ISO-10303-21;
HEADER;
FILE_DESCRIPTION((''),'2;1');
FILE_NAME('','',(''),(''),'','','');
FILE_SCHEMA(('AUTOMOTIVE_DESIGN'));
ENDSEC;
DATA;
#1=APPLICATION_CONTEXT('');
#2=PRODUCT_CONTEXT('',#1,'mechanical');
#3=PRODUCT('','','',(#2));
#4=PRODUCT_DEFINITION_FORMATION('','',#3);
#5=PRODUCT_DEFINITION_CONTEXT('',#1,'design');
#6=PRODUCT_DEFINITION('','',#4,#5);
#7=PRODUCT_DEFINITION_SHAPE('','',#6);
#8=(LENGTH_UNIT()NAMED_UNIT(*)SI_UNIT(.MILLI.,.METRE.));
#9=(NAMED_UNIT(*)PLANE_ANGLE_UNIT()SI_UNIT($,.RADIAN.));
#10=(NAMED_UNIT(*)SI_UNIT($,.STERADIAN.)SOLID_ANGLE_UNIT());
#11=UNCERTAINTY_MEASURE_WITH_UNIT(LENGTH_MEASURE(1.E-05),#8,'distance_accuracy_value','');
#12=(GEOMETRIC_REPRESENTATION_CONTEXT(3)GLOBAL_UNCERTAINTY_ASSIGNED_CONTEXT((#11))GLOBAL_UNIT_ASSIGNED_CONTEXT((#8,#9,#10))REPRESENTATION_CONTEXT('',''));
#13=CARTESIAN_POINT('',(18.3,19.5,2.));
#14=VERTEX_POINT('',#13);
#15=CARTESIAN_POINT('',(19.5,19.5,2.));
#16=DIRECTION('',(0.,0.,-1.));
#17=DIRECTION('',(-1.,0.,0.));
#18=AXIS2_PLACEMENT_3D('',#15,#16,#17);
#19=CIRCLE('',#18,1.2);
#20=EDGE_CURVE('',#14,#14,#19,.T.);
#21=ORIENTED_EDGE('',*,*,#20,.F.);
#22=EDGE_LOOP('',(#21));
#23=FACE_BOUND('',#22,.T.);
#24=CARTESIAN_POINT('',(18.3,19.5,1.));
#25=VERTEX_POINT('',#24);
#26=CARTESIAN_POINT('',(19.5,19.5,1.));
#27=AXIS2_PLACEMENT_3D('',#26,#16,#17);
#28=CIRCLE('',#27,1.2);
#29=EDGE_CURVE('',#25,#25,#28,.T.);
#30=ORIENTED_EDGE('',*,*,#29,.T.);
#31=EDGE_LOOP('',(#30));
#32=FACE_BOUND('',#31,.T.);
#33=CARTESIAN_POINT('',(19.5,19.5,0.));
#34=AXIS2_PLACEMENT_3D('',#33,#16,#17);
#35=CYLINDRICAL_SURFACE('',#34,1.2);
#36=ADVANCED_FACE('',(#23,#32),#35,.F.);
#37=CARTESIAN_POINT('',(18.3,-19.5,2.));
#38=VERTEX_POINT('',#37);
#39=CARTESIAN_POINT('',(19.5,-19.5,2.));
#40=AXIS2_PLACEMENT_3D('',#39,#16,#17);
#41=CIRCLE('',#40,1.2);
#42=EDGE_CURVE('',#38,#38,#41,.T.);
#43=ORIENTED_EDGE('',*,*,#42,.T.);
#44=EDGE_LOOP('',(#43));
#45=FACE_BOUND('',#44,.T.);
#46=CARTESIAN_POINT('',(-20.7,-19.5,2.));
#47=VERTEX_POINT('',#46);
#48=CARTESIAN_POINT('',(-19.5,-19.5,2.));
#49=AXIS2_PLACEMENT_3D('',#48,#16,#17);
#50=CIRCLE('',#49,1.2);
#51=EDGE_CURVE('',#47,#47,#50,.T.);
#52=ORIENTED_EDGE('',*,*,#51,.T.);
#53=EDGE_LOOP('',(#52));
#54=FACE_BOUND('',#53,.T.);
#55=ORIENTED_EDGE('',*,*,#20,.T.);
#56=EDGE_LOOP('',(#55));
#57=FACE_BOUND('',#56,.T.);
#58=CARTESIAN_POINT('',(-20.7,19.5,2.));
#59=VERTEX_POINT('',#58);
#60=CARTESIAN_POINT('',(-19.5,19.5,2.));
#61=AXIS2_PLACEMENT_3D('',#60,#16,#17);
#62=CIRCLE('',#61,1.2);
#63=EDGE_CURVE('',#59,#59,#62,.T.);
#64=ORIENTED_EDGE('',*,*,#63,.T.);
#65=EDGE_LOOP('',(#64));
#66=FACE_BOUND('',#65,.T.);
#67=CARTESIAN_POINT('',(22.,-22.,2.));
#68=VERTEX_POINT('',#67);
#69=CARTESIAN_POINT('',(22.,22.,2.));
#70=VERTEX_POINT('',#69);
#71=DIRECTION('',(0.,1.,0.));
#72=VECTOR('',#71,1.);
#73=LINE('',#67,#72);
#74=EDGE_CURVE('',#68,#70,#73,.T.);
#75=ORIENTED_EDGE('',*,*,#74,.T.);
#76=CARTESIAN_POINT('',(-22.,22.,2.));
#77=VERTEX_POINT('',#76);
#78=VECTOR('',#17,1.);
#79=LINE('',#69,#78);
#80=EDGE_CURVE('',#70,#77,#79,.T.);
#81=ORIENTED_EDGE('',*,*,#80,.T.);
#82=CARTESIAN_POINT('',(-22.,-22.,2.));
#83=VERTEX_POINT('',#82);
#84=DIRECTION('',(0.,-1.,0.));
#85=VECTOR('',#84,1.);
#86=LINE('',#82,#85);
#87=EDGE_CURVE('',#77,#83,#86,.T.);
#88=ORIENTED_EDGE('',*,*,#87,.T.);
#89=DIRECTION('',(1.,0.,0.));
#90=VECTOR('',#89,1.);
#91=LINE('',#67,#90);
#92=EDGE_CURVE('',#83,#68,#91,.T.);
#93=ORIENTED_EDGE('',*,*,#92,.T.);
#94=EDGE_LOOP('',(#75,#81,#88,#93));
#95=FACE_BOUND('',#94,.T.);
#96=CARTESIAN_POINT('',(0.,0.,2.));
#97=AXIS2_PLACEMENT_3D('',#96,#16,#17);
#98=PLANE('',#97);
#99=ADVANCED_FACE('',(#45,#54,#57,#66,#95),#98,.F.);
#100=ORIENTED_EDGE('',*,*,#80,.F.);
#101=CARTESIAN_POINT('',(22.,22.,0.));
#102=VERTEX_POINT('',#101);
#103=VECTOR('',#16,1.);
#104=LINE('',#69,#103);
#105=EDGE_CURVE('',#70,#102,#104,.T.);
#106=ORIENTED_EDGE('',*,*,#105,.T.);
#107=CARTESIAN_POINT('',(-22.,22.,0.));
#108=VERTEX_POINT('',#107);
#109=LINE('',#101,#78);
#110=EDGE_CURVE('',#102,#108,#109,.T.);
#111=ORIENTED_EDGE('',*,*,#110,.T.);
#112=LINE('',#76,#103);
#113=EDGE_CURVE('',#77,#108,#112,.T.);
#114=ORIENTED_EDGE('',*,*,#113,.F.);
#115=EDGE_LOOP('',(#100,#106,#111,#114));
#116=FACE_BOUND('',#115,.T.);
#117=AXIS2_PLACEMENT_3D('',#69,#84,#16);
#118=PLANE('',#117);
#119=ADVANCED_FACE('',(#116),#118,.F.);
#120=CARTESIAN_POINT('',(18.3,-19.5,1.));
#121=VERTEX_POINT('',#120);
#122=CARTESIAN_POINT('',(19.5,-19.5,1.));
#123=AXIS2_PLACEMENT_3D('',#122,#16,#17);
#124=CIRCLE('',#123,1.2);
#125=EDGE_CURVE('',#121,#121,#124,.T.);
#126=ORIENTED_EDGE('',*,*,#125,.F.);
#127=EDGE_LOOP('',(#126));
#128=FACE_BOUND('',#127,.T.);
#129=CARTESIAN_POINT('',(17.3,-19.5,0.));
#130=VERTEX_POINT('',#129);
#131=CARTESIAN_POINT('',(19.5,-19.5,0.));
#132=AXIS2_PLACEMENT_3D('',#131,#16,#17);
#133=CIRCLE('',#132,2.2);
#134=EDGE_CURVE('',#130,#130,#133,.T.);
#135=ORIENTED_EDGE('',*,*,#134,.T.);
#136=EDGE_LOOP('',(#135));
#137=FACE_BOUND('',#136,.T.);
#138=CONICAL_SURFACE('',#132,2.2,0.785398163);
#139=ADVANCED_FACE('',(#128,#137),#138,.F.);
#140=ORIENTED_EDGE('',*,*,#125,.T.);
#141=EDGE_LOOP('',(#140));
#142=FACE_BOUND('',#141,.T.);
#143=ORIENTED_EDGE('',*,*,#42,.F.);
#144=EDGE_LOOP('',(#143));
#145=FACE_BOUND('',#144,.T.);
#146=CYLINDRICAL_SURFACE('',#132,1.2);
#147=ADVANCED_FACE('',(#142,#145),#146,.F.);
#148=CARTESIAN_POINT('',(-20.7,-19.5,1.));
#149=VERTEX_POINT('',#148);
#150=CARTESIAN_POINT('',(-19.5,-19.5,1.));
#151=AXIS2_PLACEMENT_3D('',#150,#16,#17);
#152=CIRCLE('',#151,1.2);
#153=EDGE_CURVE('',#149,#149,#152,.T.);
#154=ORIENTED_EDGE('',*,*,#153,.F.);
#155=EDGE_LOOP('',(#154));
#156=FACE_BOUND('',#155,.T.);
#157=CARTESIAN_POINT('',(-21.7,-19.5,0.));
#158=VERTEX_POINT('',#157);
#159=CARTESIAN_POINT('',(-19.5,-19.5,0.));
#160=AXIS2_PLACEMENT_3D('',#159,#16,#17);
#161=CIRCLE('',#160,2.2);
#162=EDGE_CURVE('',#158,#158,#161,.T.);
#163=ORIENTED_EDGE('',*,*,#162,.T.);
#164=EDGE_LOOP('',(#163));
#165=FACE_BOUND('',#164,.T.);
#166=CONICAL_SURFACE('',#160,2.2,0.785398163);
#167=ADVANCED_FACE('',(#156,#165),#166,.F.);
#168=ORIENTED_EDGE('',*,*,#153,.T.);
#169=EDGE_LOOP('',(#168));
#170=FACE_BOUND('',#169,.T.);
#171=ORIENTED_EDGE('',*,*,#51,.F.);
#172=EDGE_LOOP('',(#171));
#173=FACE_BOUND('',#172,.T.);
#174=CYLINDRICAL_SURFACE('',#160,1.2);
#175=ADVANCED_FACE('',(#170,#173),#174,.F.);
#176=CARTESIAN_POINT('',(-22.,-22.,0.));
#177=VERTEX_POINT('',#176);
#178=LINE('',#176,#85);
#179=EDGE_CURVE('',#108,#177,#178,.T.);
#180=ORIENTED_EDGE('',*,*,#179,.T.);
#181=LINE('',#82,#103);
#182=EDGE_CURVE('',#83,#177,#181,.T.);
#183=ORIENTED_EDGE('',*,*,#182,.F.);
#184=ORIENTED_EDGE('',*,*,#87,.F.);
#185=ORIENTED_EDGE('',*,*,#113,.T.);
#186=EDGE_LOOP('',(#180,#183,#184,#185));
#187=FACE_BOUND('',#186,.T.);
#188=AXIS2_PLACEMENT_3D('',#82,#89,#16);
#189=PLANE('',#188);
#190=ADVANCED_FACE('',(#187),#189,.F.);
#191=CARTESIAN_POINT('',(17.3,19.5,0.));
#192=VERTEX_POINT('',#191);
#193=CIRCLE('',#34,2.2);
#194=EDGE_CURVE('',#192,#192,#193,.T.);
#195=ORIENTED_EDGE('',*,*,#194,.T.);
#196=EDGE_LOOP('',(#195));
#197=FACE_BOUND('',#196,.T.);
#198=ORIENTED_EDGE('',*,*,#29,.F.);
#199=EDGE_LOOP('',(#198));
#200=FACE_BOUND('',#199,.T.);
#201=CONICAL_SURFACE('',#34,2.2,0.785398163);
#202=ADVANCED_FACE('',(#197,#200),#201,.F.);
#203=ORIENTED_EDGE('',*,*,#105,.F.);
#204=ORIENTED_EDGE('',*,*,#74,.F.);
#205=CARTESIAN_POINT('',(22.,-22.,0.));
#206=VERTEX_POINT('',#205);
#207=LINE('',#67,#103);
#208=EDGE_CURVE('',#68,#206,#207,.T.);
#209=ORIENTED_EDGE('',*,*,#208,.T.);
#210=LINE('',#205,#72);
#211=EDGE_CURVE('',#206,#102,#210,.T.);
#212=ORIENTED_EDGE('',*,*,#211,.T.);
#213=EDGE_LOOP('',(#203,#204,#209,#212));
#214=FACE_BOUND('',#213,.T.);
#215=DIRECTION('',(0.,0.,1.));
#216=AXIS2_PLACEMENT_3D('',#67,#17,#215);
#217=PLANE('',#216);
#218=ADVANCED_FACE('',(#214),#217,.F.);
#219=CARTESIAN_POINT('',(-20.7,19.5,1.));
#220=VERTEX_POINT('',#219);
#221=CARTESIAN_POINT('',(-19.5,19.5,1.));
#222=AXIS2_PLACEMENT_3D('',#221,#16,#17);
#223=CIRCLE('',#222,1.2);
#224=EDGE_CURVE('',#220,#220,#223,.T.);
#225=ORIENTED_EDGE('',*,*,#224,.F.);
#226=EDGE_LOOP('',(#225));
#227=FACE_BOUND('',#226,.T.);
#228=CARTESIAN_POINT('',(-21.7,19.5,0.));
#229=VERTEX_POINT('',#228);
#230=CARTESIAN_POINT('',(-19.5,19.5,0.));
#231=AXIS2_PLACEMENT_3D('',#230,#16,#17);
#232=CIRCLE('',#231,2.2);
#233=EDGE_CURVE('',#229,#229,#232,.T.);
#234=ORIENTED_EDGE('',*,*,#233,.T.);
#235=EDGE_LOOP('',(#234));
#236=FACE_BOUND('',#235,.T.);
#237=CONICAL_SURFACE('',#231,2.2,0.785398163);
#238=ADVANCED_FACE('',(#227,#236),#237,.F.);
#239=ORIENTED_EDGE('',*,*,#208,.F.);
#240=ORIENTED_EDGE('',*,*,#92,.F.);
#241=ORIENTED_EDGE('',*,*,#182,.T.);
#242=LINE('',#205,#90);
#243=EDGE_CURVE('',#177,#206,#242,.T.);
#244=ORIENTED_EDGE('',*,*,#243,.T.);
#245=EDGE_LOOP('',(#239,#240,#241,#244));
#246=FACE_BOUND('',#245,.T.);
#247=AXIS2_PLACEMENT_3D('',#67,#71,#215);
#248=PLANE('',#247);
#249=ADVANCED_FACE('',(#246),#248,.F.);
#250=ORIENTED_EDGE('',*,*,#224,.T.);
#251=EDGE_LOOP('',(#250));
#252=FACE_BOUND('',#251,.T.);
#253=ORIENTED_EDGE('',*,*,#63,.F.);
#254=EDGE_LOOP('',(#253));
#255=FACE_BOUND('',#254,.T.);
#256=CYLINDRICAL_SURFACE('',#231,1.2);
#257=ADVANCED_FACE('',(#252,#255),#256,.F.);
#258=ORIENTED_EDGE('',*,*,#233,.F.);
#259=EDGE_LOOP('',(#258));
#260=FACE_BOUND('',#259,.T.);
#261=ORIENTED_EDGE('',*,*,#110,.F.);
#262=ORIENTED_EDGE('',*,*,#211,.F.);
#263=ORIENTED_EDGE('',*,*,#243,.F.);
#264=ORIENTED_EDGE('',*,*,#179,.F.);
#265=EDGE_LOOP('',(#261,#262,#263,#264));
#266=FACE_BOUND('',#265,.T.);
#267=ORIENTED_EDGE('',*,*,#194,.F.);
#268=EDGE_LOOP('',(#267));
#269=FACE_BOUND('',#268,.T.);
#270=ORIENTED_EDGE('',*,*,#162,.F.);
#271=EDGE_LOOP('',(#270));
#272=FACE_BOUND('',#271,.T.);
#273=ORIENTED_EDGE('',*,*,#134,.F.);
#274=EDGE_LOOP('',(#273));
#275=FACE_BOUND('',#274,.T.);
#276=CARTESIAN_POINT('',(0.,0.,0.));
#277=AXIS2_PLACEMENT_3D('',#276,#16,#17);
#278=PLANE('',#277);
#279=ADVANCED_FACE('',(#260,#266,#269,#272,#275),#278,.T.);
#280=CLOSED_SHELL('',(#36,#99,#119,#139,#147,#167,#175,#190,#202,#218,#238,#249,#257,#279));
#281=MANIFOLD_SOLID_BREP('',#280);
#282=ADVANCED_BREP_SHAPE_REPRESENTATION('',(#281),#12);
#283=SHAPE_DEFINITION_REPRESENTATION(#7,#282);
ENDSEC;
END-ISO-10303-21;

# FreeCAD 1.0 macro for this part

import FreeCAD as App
import Part
import Sketcher

V = App.Vector
Q = App.Units.Quantity

doc = App.newDocument("Part")
params = doc.addObject("Spreadsheet::Sheet", "Params")
for row, (alias, value) in enumerate([
    ("sketch1_width", "44 mm"),
    ("pad1_length", "2 mm"),
    ("sketch2_height", "2 mm"),
    ("sketch2_height2", "1 mm"),
    ("sketch2_width", "2.2 mm"),
    ("groove_angle", "360 deg"),
    ("linearpattern_pitch", "39 mm"),
    ("sketch3_height", "2 mm"),
    ("sketch3_height2", "1 mm"),
    ("sketch3_width", "1.2 mm"),
    ("groove2_angle", "360 deg"),
], start=1):
    params.set(f"A{row}", alias)
    params.set(f"B{row}", "=" + value)
    params.setAlias(f"B{row}", alias)

body = doc.addObject("PartDesign::Body", "Body")

# Sketch on XY plane
sketch1 = doc.addObject("Sketcher::SketchObject", "Sketch")
body.addObject(sketch1)
sketch1.AttachmentSupport = (doc.XY_Plane, [""])
sketch1.MapMode = "FlatFace"
sketch1.addGeometry(Part.LineSegment(V(-22, -22, 0), V(22, -22, 0)), False)
sketch1.addGeometry(Part.LineSegment(V(22, -22, 0), V(22, 22, 0)), False)
sketch1.addGeometry(Part.LineSegment(V(22, 22, 0), V(-22, 22, 0)), False)
sketch1.addGeometry(Part.LineSegment(V(-22, 22, 0), V(-22, -22, 0)), False)
sketch1.addConstraint(Sketcher.Constraint("Coincident", 0, 2, 1, 1))
sketch1.addConstraint(Sketcher.Constraint("Coincident", 1, 2, 2, 1))
sketch1.addConstraint(Sketcher.Constraint("Coincident", 2, 2, 3, 1))
sketch1.addConstraint(Sketcher.Constraint("Coincident", 3, 2, 0, 1))
sketch1.addConstraint(Sketcher.Constraint("Horizontal", 0))
sketch1.addConstraint(Sketcher.Constraint("Vertical", 1))
sketch1.addConstraint(Sketcher.Constraint("Horizontal", 2))
sketch1.addConstraint(Sketcher.Constraint("Vertical", 3))
sketch1.addConstraint(Sketcher.Constraint("Symmetric", 0, 2, 2, 2, -1, 1))
sketch1.addConstraint(Sketcher.Constraint("Equal", 2, 1))
sketch1.addConstraint(Sketcher.Constraint("DistanceX", 0, 1, 0, 2, 44.0))
sketch1.setExpression("Constraints[10]", "Params.sketch1_width")
pad1 = doc.addObject("PartDesign::Pad", "Pad")
body.addObject(pad1)
pad1.Profile = sketch1
pad1.setExpression("Length", "Params.pad1_length")

# Sketch on YZ plane
sketch2 = doc.addObject("Sketcher::SketchObject", "Sketch001")
body.addObject(sketch2)
sketch2.AttachmentSupport = (doc.YZ_Plane, [""])
sketch2.MapMode = "FlatFace"
sketch2.AttachmentOffset = App.Placement(V(0, 0, 19.5), App.Rotation())
sketch2.addGeometry(Part.LineSegment(V(19.5, 2, 0), V(19.5, 0, 0)), False)
sketch2.addGeometry(Part.LineSegment(V(19.5, 0, 0), V(21.7, 0, 0)), False)
sketch2.addGeometry(Part.LineSegment(V(21.7, 0, 0), V(20.7, 1, 0)), False)
sketch2.addGeometry(Part.LineSegment(V(20.7, 1, 0), V(20.7, 2, 0)), False)
sketch2.addGeometry(Part.LineSegment(V(20.7, 2, 0), V(19.5, 2, 0)), False)
sketch2.addGeometry(Part.LineSegment(V(19.5, 0, 0), V(19.5, 2, 0)), True)  # axis
sketch2.addConstraint(Sketcher.Constraint("Coincident", 0, 2, 1, 1))
sketch2.addConstraint(Sketcher.Constraint("Coincident", 1, 2, 2, 1))
sketch2.addConstraint(Sketcher.Constraint("Coincident", 2, 2, 3, 1))
sketch2.addConstraint(Sketcher.Constraint("Coincident", 3, 2, 4, 1))
sketch2.addConstraint(Sketcher.Constraint("Coincident", 4, 2, 0, 1))
sketch2.addConstraint(Sketcher.Constraint("Vertical", 0))
sketch2.addConstraint(Sketcher.Constraint("Horizontal", 1))
sketch2.addConstraint(Sketcher.Constraint("Vertical", 3))
sketch2.addConstraint(Sketcher.Constraint("Horizontal", 4))
sketch2.addConstraint(Sketcher.Constraint("Vertical", 5))
sketch2.addConstraint(Sketcher.Constraint("Coincident", 5, 1, 0, 2))
sketch2.addConstraint(Sketcher.Constraint("PointOnObject", 0, 2, -1))
sketch2.addConstraint(Sketcher.Constraint("Horizontal", 3, 2, 5, 2))
sketch2.addConstraint(Sketcher.Constraint("DistanceY", 0, 2, 0, 1, 2.0))
sketch2.addConstraint(Sketcher.Constraint("DistanceY", 3, 1, 3, 2, 1.0))
sketch2.addConstraint(Sketcher.Constraint("Angle", 2, Q("135 deg")))
sketch2.addConstraint(Sketcher.Constraint("DistanceX", 1, 1, 1, 2, 2.2))
sketch2.addConstraint(Sketcher.Constraint("DistanceX", -1, 1, 0, 2, 19.5))
sketch2.setExpression("Constraints[13]", "Params.sketch2_height")
sketch2.setExpression("Constraints[14]", "Params.sketch2_height2")
sketch2.setExpression("Constraints[16]", "Params.sketch2_width")
groove = doc.addObject("PartDesign::Groove", "Groove")
body.addObject(groove)
groove.Profile = sketch2
groove.ReferenceAxis = (sketch2, ["Axis0"])
groove.setExpression("Angle", "Params.groove_angle")
doc.recompute()

linearpattern = doc.addObject("PartDesign::LinearPattern", "LinearPattern")
body.addObject(linearpattern)
linearpattern.Originals = [groove]
linearpattern.Direction = (doc.X_Axis, [""])
linearpattern.Mode = "offset"
linearpattern.setExpression("Offset", "Params.linearpattern_pitch")
linearpattern.Occurrences = 2
linearpattern.Reversed = True
body.Tip = linearpattern
doc.recompute()

mirrored = doc.addObject("PartDesign::Mirrored", "Mirrored")
body.addObject(mirrored)
mirrored.Originals = [groove]
mirrored.MirrorPlane = (doc.XZ_Plane, [""])
body.Tip = mirrored

# Sketch on YZ plane
sketch3 = doc.addObject("Sketcher::SketchObject", "Sketch002")
body.addObject(sketch3)
sketch3.AttachmentSupport = (doc.YZ_Plane, [""])
sketch3.MapMode = "FlatFace"
sketch3.AttachmentOffset = App.Placement(V(0, 0, -19.5), App.Rotation())
sketch3.addGeometry(Part.LineSegment(V(-19.5, 0, 0), V(-19.5, 2, 0)), False)
sketch3.addGeometry(Part.LineSegment(V(-19.5, 2, 0), V(-20.7, 2, 0)), False)
sketch3.addGeometry(Part.LineSegment(V(-20.7, 2, 0), V(-20.7, 1, 0)), False)
sketch3.addGeometry(Part.LineSegment(V(-20.7, 1, 0), V(-21.7, 0, 0)), False)
sketch3.addGeometry(Part.LineSegment(V(-21.7, 0, 0), V(-19.5, 0, 0)), False)
sketch3.addGeometry(Part.LineSegment(V(-19.5, 2, 0), V(-19.5, 0, 0)), True)  # axis
sketch3.addConstraint(Sketcher.Constraint("Coincident", 0, 2, 1, 1))
sketch3.addConstraint(Sketcher.Constraint("Coincident", 1, 2, 2, 1))
sketch3.addConstraint(Sketcher.Constraint("Coincident", 2, 2, 3, 1))
sketch3.addConstraint(Sketcher.Constraint("Coincident", 3, 2, 4, 1))
sketch3.addConstraint(Sketcher.Constraint("Coincident", 4, 2, 0, 1))
sketch3.addConstraint(Sketcher.Constraint("Vertical", 0))
sketch3.addConstraint(Sketcher.Constraint("Horizontal", 1))
sketch3.addConstraint(Sketcher.Constraint("Vertical", 2))
sketch3.addConstraint(Sketcher.Constraint("Horizontal", 4))
sketch3.addConstraint(Sketcher.Constraint("Vertical", 5))
sketch3.addConstraint(Sketcher.Constraint("Coincident", 5, 1, 0, 2))
sketch3.addConstraint(Sketcher.Constraint("PointOnObject", 3, 2, -1))
sketch3.addConstraint(Sketcher.Constraint("PointOnObject", 5, 2, -1))
sketch3.addConstraint(Sketcher.Constraint("DistanceY", 0, 1, 0, 2, 2.0))
sketch3.addConstraint(Sketcher.Constraint("DistanceY", 2, 2, 2, 1, 1.0))
sketch3.addConstraint(Sketcher.Constraint("Angle", 3, Q("-135 deg")))
sketch3.addConstraint(Sketcher.Constraint("DistanceX", 1, 2, 1, 1, 1.2))
sketch3.addConstraint(Sketcher.Constraint("DistanceX", 0, 2, -1, 1, 19.5))
sketch3.setExpression("Constraints[13]", "Params.sketch3_height")
sketch3.setExpression("Constraints[14]", "Params.sketch3_height2")
sketch3.setExpression("Constraints[16]", "Params.sketch3_width")
groove2 = doc.addObject("PartDesign::Groove", "Groove001")
body.addObject(groove2)
groove2.Profile = sketch3
groove2.ReferenceAxis = (sketch3, ["Axis0"])
groove2.setExpression("Angle", "Params.groove2_angle")

doc.recompute()
